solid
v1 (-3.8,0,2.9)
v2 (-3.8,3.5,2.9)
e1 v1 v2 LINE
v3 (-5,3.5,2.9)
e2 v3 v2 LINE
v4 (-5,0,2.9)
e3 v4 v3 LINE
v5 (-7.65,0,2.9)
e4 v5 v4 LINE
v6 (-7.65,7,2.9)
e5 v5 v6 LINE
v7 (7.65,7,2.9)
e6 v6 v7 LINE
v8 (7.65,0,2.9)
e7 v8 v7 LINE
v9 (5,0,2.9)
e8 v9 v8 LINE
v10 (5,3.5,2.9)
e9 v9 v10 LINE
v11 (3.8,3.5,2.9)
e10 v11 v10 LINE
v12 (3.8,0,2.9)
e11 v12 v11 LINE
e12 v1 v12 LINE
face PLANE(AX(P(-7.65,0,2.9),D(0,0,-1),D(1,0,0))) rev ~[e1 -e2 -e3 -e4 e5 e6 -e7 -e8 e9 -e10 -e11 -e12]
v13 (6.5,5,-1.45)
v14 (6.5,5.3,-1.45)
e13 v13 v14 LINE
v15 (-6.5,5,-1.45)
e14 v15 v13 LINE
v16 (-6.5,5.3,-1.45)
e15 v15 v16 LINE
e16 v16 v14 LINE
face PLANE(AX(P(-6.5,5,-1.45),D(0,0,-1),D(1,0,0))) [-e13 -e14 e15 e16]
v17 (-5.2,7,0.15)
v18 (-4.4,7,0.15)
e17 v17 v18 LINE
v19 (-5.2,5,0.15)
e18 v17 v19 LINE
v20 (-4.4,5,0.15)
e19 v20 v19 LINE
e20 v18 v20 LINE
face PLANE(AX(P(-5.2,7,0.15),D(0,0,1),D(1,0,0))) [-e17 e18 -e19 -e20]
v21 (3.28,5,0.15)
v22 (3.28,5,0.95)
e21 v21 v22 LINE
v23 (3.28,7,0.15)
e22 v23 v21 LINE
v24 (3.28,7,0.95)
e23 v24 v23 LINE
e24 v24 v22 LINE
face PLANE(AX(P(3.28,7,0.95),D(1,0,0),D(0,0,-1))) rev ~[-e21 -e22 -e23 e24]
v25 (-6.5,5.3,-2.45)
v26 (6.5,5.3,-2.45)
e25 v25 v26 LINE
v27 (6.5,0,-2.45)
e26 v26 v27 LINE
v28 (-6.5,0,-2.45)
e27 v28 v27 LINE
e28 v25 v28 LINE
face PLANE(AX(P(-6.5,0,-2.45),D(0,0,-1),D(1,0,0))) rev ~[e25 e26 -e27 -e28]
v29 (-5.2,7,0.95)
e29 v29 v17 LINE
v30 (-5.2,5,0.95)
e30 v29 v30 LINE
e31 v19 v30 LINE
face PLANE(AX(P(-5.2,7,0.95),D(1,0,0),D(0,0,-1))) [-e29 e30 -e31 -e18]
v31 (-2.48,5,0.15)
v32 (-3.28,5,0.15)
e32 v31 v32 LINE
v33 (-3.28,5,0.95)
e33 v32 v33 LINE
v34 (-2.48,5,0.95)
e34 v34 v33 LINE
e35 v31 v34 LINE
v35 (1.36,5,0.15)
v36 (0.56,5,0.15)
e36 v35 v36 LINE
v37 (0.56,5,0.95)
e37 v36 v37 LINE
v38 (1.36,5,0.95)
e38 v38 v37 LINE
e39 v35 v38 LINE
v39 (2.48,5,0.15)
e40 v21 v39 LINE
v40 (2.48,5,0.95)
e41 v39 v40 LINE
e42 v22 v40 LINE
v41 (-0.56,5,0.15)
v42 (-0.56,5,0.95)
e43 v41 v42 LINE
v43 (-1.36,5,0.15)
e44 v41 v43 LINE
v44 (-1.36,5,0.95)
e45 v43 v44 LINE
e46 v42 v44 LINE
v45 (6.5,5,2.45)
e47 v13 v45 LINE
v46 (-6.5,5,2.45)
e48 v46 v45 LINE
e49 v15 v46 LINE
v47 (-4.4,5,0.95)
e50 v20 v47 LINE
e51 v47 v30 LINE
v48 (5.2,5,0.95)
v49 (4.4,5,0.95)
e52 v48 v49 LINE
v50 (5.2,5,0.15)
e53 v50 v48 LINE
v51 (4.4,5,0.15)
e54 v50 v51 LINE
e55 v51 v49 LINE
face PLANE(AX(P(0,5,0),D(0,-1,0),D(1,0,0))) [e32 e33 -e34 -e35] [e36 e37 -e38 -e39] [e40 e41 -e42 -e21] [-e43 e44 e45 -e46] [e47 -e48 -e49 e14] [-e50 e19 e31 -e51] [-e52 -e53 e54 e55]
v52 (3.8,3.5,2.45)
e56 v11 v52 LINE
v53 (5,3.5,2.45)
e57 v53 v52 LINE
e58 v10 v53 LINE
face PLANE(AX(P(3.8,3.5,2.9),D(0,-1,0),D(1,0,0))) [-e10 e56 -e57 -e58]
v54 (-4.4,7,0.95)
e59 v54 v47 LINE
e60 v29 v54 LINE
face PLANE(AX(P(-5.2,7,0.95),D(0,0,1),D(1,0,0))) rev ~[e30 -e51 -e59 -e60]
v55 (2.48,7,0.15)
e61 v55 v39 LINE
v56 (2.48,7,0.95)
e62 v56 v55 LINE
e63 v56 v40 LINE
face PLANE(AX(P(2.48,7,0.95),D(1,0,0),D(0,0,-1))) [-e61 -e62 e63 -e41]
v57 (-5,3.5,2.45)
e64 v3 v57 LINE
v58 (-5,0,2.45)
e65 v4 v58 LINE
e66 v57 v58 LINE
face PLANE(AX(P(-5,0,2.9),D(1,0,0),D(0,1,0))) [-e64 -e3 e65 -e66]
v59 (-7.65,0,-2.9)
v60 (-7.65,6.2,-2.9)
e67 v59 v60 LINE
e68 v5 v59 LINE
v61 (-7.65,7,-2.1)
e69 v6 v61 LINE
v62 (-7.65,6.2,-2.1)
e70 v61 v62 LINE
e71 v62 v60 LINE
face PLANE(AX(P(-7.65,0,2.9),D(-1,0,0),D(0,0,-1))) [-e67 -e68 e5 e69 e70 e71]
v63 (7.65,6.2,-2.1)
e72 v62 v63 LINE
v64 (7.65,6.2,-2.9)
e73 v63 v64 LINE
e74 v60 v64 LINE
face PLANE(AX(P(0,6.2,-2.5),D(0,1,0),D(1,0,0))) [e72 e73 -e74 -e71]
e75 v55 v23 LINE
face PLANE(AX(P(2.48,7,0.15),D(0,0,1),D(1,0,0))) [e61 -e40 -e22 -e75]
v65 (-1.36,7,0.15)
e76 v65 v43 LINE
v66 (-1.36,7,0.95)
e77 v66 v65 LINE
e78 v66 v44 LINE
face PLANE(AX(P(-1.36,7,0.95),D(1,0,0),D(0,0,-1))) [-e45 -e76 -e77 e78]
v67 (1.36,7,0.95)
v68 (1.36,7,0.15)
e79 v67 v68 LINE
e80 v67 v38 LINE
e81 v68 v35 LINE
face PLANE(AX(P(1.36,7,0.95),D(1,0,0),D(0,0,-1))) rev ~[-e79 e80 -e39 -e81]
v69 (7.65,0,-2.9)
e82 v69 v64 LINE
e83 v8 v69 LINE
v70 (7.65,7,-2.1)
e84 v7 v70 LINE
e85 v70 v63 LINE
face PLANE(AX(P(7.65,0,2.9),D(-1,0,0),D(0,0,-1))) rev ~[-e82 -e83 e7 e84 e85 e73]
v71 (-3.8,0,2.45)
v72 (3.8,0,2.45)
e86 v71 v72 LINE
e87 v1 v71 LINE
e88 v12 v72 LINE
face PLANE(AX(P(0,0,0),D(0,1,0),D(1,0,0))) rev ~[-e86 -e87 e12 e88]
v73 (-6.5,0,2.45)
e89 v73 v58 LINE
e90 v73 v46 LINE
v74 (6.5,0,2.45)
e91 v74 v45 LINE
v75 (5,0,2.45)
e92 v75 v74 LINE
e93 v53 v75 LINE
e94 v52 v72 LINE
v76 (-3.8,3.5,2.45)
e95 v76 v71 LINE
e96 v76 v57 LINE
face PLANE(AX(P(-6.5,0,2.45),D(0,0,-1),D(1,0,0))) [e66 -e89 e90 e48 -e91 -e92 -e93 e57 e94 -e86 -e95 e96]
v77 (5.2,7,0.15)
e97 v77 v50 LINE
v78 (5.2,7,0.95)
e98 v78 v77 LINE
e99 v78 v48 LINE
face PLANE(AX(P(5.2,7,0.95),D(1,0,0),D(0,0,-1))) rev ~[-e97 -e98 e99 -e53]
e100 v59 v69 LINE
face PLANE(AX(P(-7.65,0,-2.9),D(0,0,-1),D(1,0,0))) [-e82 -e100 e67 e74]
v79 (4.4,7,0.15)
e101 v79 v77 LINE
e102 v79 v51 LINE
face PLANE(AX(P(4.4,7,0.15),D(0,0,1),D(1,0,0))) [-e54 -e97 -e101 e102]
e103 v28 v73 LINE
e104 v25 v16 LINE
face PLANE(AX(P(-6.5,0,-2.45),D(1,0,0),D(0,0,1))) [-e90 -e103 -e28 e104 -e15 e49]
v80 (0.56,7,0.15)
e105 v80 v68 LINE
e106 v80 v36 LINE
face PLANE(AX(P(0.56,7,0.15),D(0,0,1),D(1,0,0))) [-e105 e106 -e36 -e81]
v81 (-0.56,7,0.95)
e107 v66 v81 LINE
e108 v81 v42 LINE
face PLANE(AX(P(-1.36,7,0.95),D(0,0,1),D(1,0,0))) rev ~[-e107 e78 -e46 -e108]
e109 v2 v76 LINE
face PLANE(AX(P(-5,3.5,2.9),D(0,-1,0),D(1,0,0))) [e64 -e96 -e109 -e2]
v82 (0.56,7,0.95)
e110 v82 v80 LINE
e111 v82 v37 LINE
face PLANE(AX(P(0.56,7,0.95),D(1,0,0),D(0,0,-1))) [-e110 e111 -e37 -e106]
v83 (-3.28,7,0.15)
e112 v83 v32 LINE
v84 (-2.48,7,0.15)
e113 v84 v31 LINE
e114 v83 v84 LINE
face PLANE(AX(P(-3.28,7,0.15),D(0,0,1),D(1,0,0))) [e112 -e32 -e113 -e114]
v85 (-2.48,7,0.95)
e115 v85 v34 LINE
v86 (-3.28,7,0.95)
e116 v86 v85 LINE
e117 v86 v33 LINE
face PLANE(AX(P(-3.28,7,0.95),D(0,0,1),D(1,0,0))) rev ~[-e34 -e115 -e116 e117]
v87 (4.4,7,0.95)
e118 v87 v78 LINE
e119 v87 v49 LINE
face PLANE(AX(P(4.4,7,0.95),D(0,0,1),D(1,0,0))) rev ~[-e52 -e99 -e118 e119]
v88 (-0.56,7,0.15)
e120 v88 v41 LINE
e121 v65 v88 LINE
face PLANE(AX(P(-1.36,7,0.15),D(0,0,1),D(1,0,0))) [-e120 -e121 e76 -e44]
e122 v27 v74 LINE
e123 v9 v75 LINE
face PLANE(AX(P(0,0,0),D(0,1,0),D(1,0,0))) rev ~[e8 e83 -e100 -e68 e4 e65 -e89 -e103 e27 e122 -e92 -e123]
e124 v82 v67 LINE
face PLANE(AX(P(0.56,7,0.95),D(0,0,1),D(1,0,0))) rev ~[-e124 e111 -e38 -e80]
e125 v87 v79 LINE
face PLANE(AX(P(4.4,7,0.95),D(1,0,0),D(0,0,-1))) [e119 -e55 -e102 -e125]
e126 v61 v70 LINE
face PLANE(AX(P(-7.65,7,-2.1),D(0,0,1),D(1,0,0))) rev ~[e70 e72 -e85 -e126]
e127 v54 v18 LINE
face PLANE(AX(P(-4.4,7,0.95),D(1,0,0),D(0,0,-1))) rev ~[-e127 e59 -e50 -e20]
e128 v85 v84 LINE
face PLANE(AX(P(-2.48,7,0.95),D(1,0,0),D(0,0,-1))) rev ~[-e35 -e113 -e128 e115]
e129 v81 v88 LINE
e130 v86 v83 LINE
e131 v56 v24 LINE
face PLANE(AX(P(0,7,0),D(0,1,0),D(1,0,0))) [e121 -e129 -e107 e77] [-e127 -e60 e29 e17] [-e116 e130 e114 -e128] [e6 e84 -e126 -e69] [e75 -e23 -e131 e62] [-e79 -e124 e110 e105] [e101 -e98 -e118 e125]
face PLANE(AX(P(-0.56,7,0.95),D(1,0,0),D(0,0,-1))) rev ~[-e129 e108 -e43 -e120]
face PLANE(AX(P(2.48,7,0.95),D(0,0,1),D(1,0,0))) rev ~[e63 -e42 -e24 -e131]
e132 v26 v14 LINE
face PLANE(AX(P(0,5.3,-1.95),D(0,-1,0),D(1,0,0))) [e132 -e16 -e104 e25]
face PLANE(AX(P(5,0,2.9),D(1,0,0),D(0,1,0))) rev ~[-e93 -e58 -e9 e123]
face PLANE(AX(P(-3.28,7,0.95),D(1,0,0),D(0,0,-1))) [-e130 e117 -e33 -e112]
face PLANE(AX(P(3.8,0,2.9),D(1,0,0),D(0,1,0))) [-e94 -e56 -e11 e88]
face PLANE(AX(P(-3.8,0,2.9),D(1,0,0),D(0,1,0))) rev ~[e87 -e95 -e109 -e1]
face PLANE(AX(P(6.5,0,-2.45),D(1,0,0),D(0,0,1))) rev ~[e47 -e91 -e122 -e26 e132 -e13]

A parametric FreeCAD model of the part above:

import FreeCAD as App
import Part
import Sketcher

V = App.Vector
Q = App.Units.Quantity


def add_polygon(sketch, points):
    """Adds a closed chain of lines whose ends are joined by coincident constraints."""
    first, n = sketch.GeometryCount, len(points)
    for a, b in zip(points, points[1:] + points[:1]):
        sketch.addGeometry(Part.LineSegment(App.Vector(*a, 0), App.Vector(*b, 0)), False)
    for i in range(n):
        sketch.addConstraint(Sketcher.Constraint("Coincident", first + i, 2, first + (i + 1) % n, 1))

doc = App.newDocument("Part")
body = doc.addObject("PartDesign::Body", "Body")

sketch1 = doc.addObject("Sketcher::SketchObject", "Sketch")
body.addObject(sketch1)
sketch1.AttachmentSupport = (doc.XZ_Plane, [""])
sketch1.MapMode = "FlatFace"
add_polygon(sketch1, [(-7.65, -2.9), (-7.65, 2.9), (7.65, 2.9), (7.65, -2.9)])
sketch1.addConstraint([
    Sketcher.Constraint("Vertical", 0),
    Sketcher.Constraint("Horizontal", 1),
    Sketcher.Constraint("Vertical", 2),
    Sketcher.Constraint("Horizontal", 3),
    Sketcher.Constraint("Symmetric", 0, 2, 2, 2, -1, 1),
    Sketcher.Constraint("DistanceX", 1, 1, 1, 2, Q("15.3 mm")),
    Sketcher.Constraint("DistanceY", 0, 1, 0, 2, Q("5.8 mm")),
])
pad1 = doc.addObject("PartDesign::Pad", "Pad")
body.addObject(pad1)
pad1.Profile = sketch1
pad1.Length = 7
pad1.Reversed = True

sketch2 = doc.addObject("Sketcher::SketchObject", "Sketch001")
body.addObject(sketch2)
sketch2.AttachmentSupport = (doc.XZ_Plane, [""])
sketch2.MapMode = "FlatFace"
add_polygon(sketch2, [(-6.5, 2.45), (-6.5, -2.45), (6.5, -2.45), (6.5, 2.45)])
sketch2.addConstraint([
    Sketcher.Constraint("Vertical", 0),
    Sketcher.Constraint("Horizontal", 1),
    Sketcher.Constraint("Vertical", 2),
    Sketcher.Constraint("Horizontal", 3),
    Sketcher.Constraint("Symmetric", 0, 2, 2, 2, -1, 1),
    Sketcher.Constraint("DistanceX", 1, 1, 1, 2, Q("13 mm")),
    Sketcher.Constraint("DistanceY", 0, 2, 0, 1, Q("4.9 mm")),
])
pocket1 = doc.addObject("PartDesign::Pocket", "Pocket")
body.addObject(pocket1)
pocket1.Profile = sketch2
pocket1.Length = 5

sketch3 = doc.addObject("Sketcher::SketchObject", "Sketch002")
body.addObject(sketch3)
sketch3.AttachmentSupport = (doc.XY_Plane, [""])
sketch3.MapMode = "FlatFace"
sketch3.AttachmentOffset = App.Placement(V(0, 0, 2.9), App.Rotation())
add_polygon(sketch3, [(-5, 3.5), (-5, 0), (-3.8, 0), (-3.8, 3.5)])
add_polygon(sketch3, [(3.8, 3.5), (3.8, 0), (5, 0), (5, 3.5)])
sketch3.addConstraint([
    Sketcher.Constraint("Vertical", 0),
    Sketcher.Constraint("Horizontal", 1),
    Sketcher.Constraint("Vertical", 2),
    Sketcher.Constraint("Horizontal", 3),
    Sketcher.Constraint("Vertical", 4),
    Sketcher.Constraint("Horizontal", 5),
    Sketcher.Constraint("Vertical", 6),
    Sketcher.Constraint("Horizontal", 7),
    Sketcher.Constraint("Symmetric", 1, 2, 4, 2, -1, 1),
    Sketcher.Constraint("Symmetric", 0, 2, 5, 2, -2),
    Sketcher.Constraint("Horizontal", 3, 2, 6, 2),
    Sketcher.Constraint("DistanceX", 1, 1, 1, 2, Q("1.2 mm")),
    Sketcher.Constraint("DistanceY", 0, 2, 0, 1, Q("3.5 mm")),
    Sketcher.Constraint("DistanceX", 0, 2, -1, 1, Q("5 mm")),
])
pocket2 = doc.addObject("PartDesign::Pocket", "Pocket001")
body.addObject(pocket2)
pocket2.Profile = sketch3
pocket2.Length = 4

sketch4 = doc.addObject("Sketcher::SketchObject", "Sketch003")
body.addObject(sketch4)
sketch4.AttachmentSupport = (doc.XZ_Plane, [""])
sketch4.MapMode = "FlatFace"
sketch4.AttachmentOffset = App.Placement(V(0, 0, -7), App.Rotation())
add_polygon(sketch4, [(-7.65, -2.9), (-7.65, -2.1), (7.65, -2.1), (7.65, -2.9)])
sketch4.addConstraint([
    Sketcher.Constraint("Vertical", 0),
    Sketcher.Constraint("Horizontal", 1),
    Sketcher.Constraint("Vertical", 2),
    Sketcher.Constraint("Horizontal", 3),
    Sketcher.Constraint("DistanceX", 1, 1, 1, 2, Q("15.3 mm")),
    Sketcher.Constraint("DistanceY", 0, 1, 0, 2, Q("0.8 mm")),
    Sketcher.Constraint("DistanceY", 0, 2, -1, 1, Q("2.1 mm")),
    Sketcher.Constraint("DistanceX", 0, 2, -1, 1, Q("7.65 mm")),
])
pocket3 = doc.addObject("PartDesign::Pocket", "Pocket002")
body.addObject(pocket3)
pocket3.Profile = sketch4
pocket3.Length = 0.8
pocket3.Reversed = True

sketch5 = doc.addObject("Sketcher::SketchObject", "Sketch004")
body.addObject(sketch5)
sketch5.AttachmentSupport = (doc.XZ_Plane, [""])
sketch5.MapMode = "FlatFace"
sketch5.AttachmentOffset = App.Placement(V(0, 0, -7), App.Rotation())
add_polygon(sketch5, [(4.4, 0.15), (4.4, 0.95), (5.2, 0.95), (5.2, 0.15)])
add_polygon(sketch5, [(2.48, 0.15), (2.48, 0.95), (3.28, 0.95), (3.28, 0.15)])
add_polygon(sketch5, [(0.56, 0.15), (0.56, 0.95), (1.36, 0.95), (1.36, 0.15)])
add_polygon(sketch5, [(-1.36, 0.15), (-1.36, 0.95), (-0.56, 0.95), (-0.56, 0.15)])
add_polygon(sketch5, [(-3.28, 0.15), (-3.28, 0.95), (-2.48, 0.95), (-2.48, 0.15)])
add_polygon(sketch5, [(-5.2, 0.15), (-5.2, 0.95), (-4.4, 0.95), (-4.4, 0.15)])
sketch5.addConstraint([
    Sketcher.Constraint("Vertical", 0),
    Sketcher.Constraint("Horizontal", 1),
    Sketcher.Constraint("Vertical", 2),
    Sketcher.Constraint("Horizontal", 3),
    Sketcher.Constraint("Vertical", 4),
    Sketcher.Constraint("Horizontal", 5),
    Sketcher.Constraint("Vertical", 6),
    Sketcher.Constraint("Horizontal", 7),
    Sketcher.Constraint("Vertical", 8),
    Sketcher.Constraint("Horizontal", 9),
    Sketcher.Constraint("Vertical", 10),
    Sketcher.Constraint("Horizontal", 11),
    Sketcher.Constraint("Vertical", 12),
    Sketcher.Constraint("Horizontal", 13),
    Sketcher.Constraint("Vertical", 14),
    Sketcher.Constraint("Horizontal", 15),
    Sketcher.Constraint("Vertical", 16),
    Sketcher.Constraint("Horizontal", 17),
    Sketcher.Constraint("Vertical", 18),
    Sketcher.Constraint("Horizontal", 19),
    Sketcher.Constraint("Vertical", 20),
    Sketcher.Constraint("Horizontal", 21),
    Sketcher.Constraint("Vertical", 22),
    Sketcher.Constraint("Horizontal", 23),
    Sketcher.Constraint("Symmetric", 9, 2, 12, 2, -2),
    Sketcher.Constraint("Symmetric", 11, 2, 14, 2, -2),
    Sketcher.Constraint("Symmetric", 5, 2, 16, 2, -2),
    Sketcher.Constraint("Symmetric", 7, 2, 18, 2, -2),
    Sketcher.Constraint("Symmetric", 1, 2, 20, 2, -2),
    Sketcher.Constraint("Symmetric", 3, 2, 22, 2, -2),
    Sketcher.Constraint("Horizontal", 1, 2, 4, 2),
    Sketcher.Constraint("Horizontal", 3, 2, 6, 2),
    Sketcher.Constraint("Horizontal", 5, 2, 8, 2),
    Sketcher.Constraint("Horizontal", 7, 2, 10, 2),
    Sketcher.Constraint("Equal", 3, 5),
    Sketcher.Constraint("Equal", 7, 9),
    Sketcher.Constraint("Equal", 23, 0),
    Sketcher.Constraint("DistanceX", 1, 1, 1, 2, Q("0.8 mm")),
    Sketcher.Constraint("DistanceX", -1, 1, 0, 2, Q("4.4 mm")),
    Sketcher.Constraint("DistanceY", -1, 1, 0, 2, Q("0.95 mm")),
    Sketcher.Constraint("DistanceX", -1, 1, 4, 2, Q("2.48 mm")),
    Sketcher.Constraint("DistanceX", -1, 1, 8, 2, Q("0.56 mm")),
])
pocket4 = doc.addObject("PartDesign::Pocket", "Pocket003")
body.addObject(pocket4)
pocket4.Profile = sketch5
pocket4.Length = 10
pocket4.Reversed = True

sketch6 = doc.addObject("Sketcher::SketchObject", "Sketch005")
body.addObject(sketch6)
sketch6.AttachmentSupport = (doc.XZ_Plane, [""])
sketch6.MapMode = "FlatFace"
sketch6.AttachmentOffset = App.Placement(V(0, 0, -5), App.Rotation())
add_polygon(sketch6, [(-6.5, -1.45), (-6.5, -2.45), (6.5, -2.45), (6.5, -1.45)])
sketch6.addConstraint([
    Sketcher.Constraint("Vertical", 0),
    Sketcher.Constraint("Horizontal", 1),
    Sketcher.Constraint("Vertical", 2),
    Sketcher.Constraint("Horizontal", 3),
    Sketcher.Constraint("DistanceX", 1, 1, 1, 2, Q("13 mm")),
    Sketcher.Constraint("DistanceY", 0, 2, 0, 1, Q("1 mm")),
    Sketcher.Constraint("DistanceX", 0, 2, -1, 1, Q("6.5 mm")),
    Sketcher.Constraint("DistanceY", 0, 2, -1, 1, Q("2.45 mm")),
])
pocket5 = doc.addObject("PartDesign::Pocket", "Pocket004")
body.addObject(pocket5)
pocket5.Profile = sketch6
pocket5.Length = 0.3

doc.recompute()
